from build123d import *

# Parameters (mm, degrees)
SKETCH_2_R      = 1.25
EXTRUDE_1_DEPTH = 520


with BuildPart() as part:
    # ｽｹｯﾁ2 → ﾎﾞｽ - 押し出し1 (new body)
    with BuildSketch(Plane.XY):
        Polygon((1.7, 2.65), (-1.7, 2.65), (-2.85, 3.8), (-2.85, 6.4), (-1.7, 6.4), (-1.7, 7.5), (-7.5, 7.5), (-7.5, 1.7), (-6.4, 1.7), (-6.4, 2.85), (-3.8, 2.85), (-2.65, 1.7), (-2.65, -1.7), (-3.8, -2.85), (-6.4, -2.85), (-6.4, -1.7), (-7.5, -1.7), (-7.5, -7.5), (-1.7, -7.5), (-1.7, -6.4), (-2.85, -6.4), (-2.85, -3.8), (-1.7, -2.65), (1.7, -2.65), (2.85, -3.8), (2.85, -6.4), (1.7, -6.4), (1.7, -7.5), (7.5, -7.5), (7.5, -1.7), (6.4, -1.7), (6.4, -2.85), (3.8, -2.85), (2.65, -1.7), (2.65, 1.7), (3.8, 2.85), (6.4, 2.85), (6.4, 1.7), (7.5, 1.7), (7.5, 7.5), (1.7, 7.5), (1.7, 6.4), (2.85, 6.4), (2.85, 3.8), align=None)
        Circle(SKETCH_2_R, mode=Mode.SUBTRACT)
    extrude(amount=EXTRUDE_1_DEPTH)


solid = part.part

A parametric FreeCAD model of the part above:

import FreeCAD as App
import Part
import Sketcher
Q = App.Units.Quantity


def add_polygon(sketch, points):
    """Adds a closed chain of lines whose ends are joined by coincident constraints."""
    first, n = sketch.GeometryCount, len(points)
    for a, b in zip(points, points[1:] + points[:1]):
        sketch.addGeometry(Part.LineSegment(App.Vector(*a, 0), App.Vector(*b, 0)), False)
    for i in range(n):
        sketch.addConstraint(Sketcher.Constraint("Coincident", first + i, 2, first + (i + 1) % n, 1))

doc = App.newDocument("Part")
body = doc.addObject("PartDesign::Body", "Body")

# Sketch on XY plane
sketch1 = body.newObject("Sketcher::SketchObject", "Sketch")
sketch1.AttachmentSupport = (doc.getObject("XY_Plane"), [""])
sketch1.MapMode = "FlatFace"
add_polygon(sketch1, [(1.7, 2.6), (-1.7, 2.6), (-2.9, 3.8), (-2.9, 6.4), (-1.7, 6.4), (-1.7, 7.5), (-7.5, 7.5), (-7.5, 1.7), (-6.4, 1.7), (-6.4, 2.9), (-3.8, 2.9), (-2.6, 1.7), (-2.6, -1.7), (-3.8, -2.9), (-6.4, -2.9), (-6.4, -1.7), (-7.5, -1.7), (-7.5, -7.5), (-1.7, -7.5), (-1.7, -6.4), (-2.9, -6.4), (-2.9, -3.8), (-1.7, -2.6), (1.7, -2.6), (2.9, -3.8), (2.9, -6.4), (1.7, -6.4), (1.7, -7.5), (7.5, -7.5), (7.5, -1.7), (6.4, -1.7), (6.4, -2.9), (3.8, -2.9), (2.6, -1.7), (2.6, 1.7), (3.8, 2.9), (6.4, 2.9), (6.4, 1.7), (7.5, 1.7), (7.5, 7.5), (1.7, 7.5), (1.7, 6.4), (2.9, 6.4), (2.9, 3.8)])  # lines 0-43
sketch1.addGeometry(Part.Circle(App.Vector(0, 0, 0), App.Vector(0, 0, 1), 1.2), False)  # 44
sketch1.addConstraint([
    Sketcher.Constraint("Horizontal", 0),
    Sketcher.Constraint("Vertical", 2),
    Sketcher.Constraint("Horizontal", 3),
    Sketcher.Constraint("Vertical", 4),
    Sketcher.Constraint("Horizontal", 5),
    Sketcher.Constraint("Vertical", 6),
    Sketcher.Constraint("Horizontal", 7),
    Sketcher.Constraint("Vertical", 8),
    Sketcher.Constraint("Horizontal", 9),
    Sketcher.Constraint("Vertical", 11),
    Sketcher.Constraint("Horizontal", 13),
    Sketcher.Constraint("Vertical", 14),
    Sketcher.Constraint("Horizontal", 15),
    Sketcher.Constraint("Vertical", 16),
    Sketcher.Constraint("Horizontal", 17),
    Sketcher.Constraint("Vertical", 18),
    Sketcher.Constraint("Horizontal", 19),
    Sketcher.Constraint("Vertical", 20),
    Sketcher.Constraint("Horizontal", 22),
    Sketcher.Constraint("Vertical", 24),
    Sketcher.Constraint("Horizontal", 25),
    Sketcher.Constraint("Vertical", 26),
    Sketcher.Constraint("Horizontal", 27),
    Sketcher.Constraint("Vertical", 28),
    Sketcher.Constraint("Horizontal", 29),
    Sketcher.Constraint("Vertical", 30),
    Sketcher.Constraint("Horizontal", 31),
    Sketcher.Constraint("Vertical", 33),
    Sketcher.Constraint("Horizontal", 35),
    Sketcher.Constraint("Vertical", 36),
    Sketcher.Constraint("Horizontal", 37),
    Sketcher.Constraint("Vertical", 38),
    Sketcher.Constraint("Horizontal", 39),
    Sketcher.Constraint("Vertical", 40),
    Sketcher.Constraint("Horizontal", 41),
    Sketcher.Constraint("Vertical", 42),
    Sketcher.Constraint("Coincident", 44, 3, -1, 1),
    Sketcher.Constraint("Symmetric", 0, 2, 22, 2, -1, 1),
    Sketcher.Constraint("Symmetric", 1, 2, 23, 2, -1, 1),
    Sketcher.Constraint("Symmetric", 3, 2, 25, 2, -1, 1),
    Sketcher.Constraint("Symmetric", 5, 2, 27, 2, -1, 1),
    Sketcher.Constraint("Symmetric", 7, 2, 29, 2, -1, 1),
    Sketcher.Constraint("Symmetric", 9, 2, 31, 2, -1, 1),
    Sketcher.Constraint("Symmetric", 10, 2, 32, 2, -1, 1),
    Sketcher.Constraint("Symmetric", 12, 2, 34, 2, -1, 1),
    Sketcher.Constraint("Symmetric", 14, 2, 36, 2, -1, 1),
    Sketcher.Constraint("Symmetric", 16, 2, 38, 2, -1, 1),
    Sketcher.Constraint("Symmetric", 18, 2, 40, 2, -1, 1),
    Sketcher.Constraint("Symmetric", 20, 2, 42, 2, -1, 1),
    Sketcher.Constraint("Symmetric", 20, 2, 23, 2, -2),
    Sketcher.Constraint("Symmetric", 18, 2, 25, 2, -2),
    Sketcher.Constraint("Symmetric", 16, 2, 27, 2, -2),
    Sketcher.Constraint("Symmetric", 14, 2, 29, 2, -2),
    Sketcher.Constraint("Symmetric", 12, 2, 31, 2, -2),
    Sketcher.Constraint("Parallel", 1, 10),
    Sketcher.Constraint("Perpendicular", 10, 12),
    Sketcher.Constraint("Parallel", 12, 21),
    Sketcher.Constraint("Perpendicular", 32, 34),
    Sketcher.Constraint("Parallel", 34, 43),
    Sketcher.Constraint("Horizontal", 7, 2, 10, 2),
    Sketcher.Constraint("Horizontal", 11, 2, 14, 2),
    Sketcher.Constraint("Vertical", 0, 2, 3, 2),
    Sketcher.Constraint("Equal", 35, 2),
    Sketcher.Constraint("Equal", 37, 4),
    Sketcher.Constraint("Equal", 39, 6),
    Sketcher.Constraint("Equal", 41, 8),
    Sketcher.Constraint("Equal", 22, 11),
    Sketcher.Constraint("Diameter", 44, Q("2.5 mm")),
    Sketcher.Constraint("DistanceX", 0, 2, 0, 1, Q("3.4 mm")),
    Sketcher.Constraint("DistanceX", 5, 2, 5, 1, Q("5.8 mm")),
    Sketcher.Constraint("DistanceX", 7, 1, 7, 2, Q("1.1 mm")),
    Sketcher.Constraint("DistanceX", 9, 1, 9, 2, Q("2.6 mm")),
    Sketcher.Constraint("DistanceX", 3, 1, 3, 2, Q("1.15 mm")),
])
pad1 = body.newObject("PartDesign::Pad", "Pad")
pad1.Profile = sketch1
pad1.Length = 520

doc.recompute()
